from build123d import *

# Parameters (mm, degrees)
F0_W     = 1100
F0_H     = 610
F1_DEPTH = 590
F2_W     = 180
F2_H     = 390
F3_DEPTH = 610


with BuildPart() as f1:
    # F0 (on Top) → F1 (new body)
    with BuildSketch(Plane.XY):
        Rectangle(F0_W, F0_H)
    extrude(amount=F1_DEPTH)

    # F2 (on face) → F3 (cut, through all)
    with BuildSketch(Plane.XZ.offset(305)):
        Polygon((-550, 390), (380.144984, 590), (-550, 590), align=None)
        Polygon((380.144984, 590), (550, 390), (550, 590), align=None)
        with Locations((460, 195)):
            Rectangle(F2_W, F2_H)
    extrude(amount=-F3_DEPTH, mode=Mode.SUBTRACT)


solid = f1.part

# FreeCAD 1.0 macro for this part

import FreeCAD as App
import Part
import Sketcher
Q = App.Units.Quantity

doc = App.newDocument("Part")
params = doc.addObject("Spreadsheet::Sheet", "Params")
for row, (alias, value) in enumerate([
    ("sketch1_width", "1100 mm"),
    ("sketch1_height", "610 mm"),
    ("pad1_length", "590 mm"),
    ("sketch2_width", "180 mm"),
    ("sketch2_height", "200 mm"),
    ("sketch2_height2", "390 mm"),
], start=1):
    params.set(f"A{row}", alias)
    params.set(f"B{row}", "=" + value)
    params.setAlias(f"B{row}", alias)

body = doc.addObject("PartDesign::Body", "Body")

# Sketch on XY plane
sketch1 = body.newObject("Sketcher::SketchObject", "Sketch")
sketch1.AttachmentSupport = (doc.getObject("XY_Plane"), [""])
sketch1.MapMode = "FlatFace"
sketch1.addGeometry(Part.LineSegment(App.Vector(-550, 305, 0), App.Vector(-550, -305, 0)), False)
sketch1.addGeometry(Part.LineSegment(App.Vector(-550, -305, 0), App.Vector(550, -305, 0)), False)
sketch1.addGeometry(Part.LineSegment(App.Vector(550, -305, 0), App.Vector(550, 305, 0)), False)
sketch1.addGeometry(Part.LineSegment(App.Vector(550, 305, 0), App.Vector(-550, 305, 0)), False)
sketch1.addConstraint(Sketcher.Constraint("Coincident", 0, 2, 1, 1))
sketch1.addConstraint(Sketcher.Constraint("Coincident", 1, 2, 2, 1))
sketch1.addConstraint(Sketcher.Constraint("Coincident", 2, 2, 3, 1))
sketch1.addConstraint(Sketcher.Constraint("Coincident", 3, 2, 0, 1))
sketch1.addConstraint(Sketcher.Constraint("Vertical", 0))
sketch1.addConstraint(Sketcher.Constraint("Horizontal", 1))
sketch1.addConstraint(Sketcher.Constraint("Vertical", 2))
sketch1.addConstraint(Sketcher.Constraint("Horizontal", 3))
sketch1.addConstraint(Sketcher.Constraint("Symmetric", 0, 2, 2, 2, -1, 1))
sketch1.addConstraint(Sketcher.Constraint("DistanceX", 1, 1, 1, 2, Q("1100 mm")))
sketch1.addConstraint(Sketcher.Constraint("DistanceY", 0, 2, 0, 1, Q("610 mm")))
sketch1.setExpression("Constraints[9]", "Params.sketch1_width")
sketch1.setExpression("Constraints[10]", "Params.sketch1_height")
pad1 = body.newObject("PartDesign::Pad", "Pad")
pad1.Profile = sketch1
pad1.setExpression("Length", "Params.pad1_length")

# Sketch on XZ plane
sketch2 = body.newObject("Sketcher::SketchObject", "Sketch001")
sketch2.AttachmentSupport = (doc.getObject("XZ_Plane"), [""])
sketch2.MapMode = "FlatFace"
sketch2.AttachmentOffset = App.Placement(App.Vector(0, 0, 305), App.Rotation())
sketch2.addGeometry(Part.LineSegment(App.Vector(-550, 390, 0), App.Vector(380, 590, 0)), False)
sketch2.addGeometry(Part.LineSegment(App.Vector(380, 590, 0), App.Vector(-550, 590, 0)), False)
sketch2.addGeometry(Part.LineSegment(App.Vector(-550, 590, 0), App.Vector(-550, 390, 0)), False)
sketch2.addGeometry(Part.LineSegment(App.Vector(380, 590, 0), App.Vector(550, 390, 0)), False)
sketch2.addGeometry(Part.LineSegment(App.Vector(550, 390, 0), App.Vector(550, 590, 0)), False)
sketch2.addGeometry(Part.LineSegment(App.Vector(550, 590, 0), App.Vector(380, 590, 0)), False)
sketch2.addGeometry(Part.LineSegment(App.Vector(370, 390, 0), App.Vector(370, 0, 0)), False)
sketch2.addGeometry(Part.LineSegment(App.Vector(370, 0, 0), App.Vector(550, 0, 0)), False)
sketch2.addGeometry(Part.LineSegment(App.Vector(550, 0, 0), App.Vector(550, 390, 0)), False)
sketch2.addGeometry(Part.LineSegment(App.Vector(550, 390, 0), App.Vector(370, 390, 0)), False)
sketch2.addConstraint(Sketcher.Constraint("Coincident", 0, 2, 1, 1))
sketch2.addConstraint(Sketcher.Constraint("Coincident", 1, 2, 2, 1))
sketch2.addConstraint(Sketcher.Constraint("Coincident", 2, 2, 0, 1))
sketch2.addConstraint(Sketcher.Constraint("Coincident", 3, 2, 4, 1))
sketch2.addConstraint(Sketcher.Constraint("Coincident", 4, 2, 5, 1))
sketch2.addConstraint(Sketcher.Constraint("Coincident", 5, 2, 3, 1))
sketch2.addConstraint(Sketcher.Constraint("Coincident", 6, 2, 7, 1))
sketch2.addConstraint(Sketcher.Constraint("Coincident", 7, 2, 8, 1))
sketch2.addConstraint(Sketcher.Constraint("Coincident", 8, 2, 9, 1))
sketch2.addConstraint(Sketcher.Constraint("Coincident", 9, 2, 6, 1))
sketch2.addConstraint(Sketcher.Constraint("Horizontal", 1))
sketch2.addConstraint(Sketcher.Constraint("Vertical", 2))
sketch2.addConstraint(Sketcher.Constraint("Vertical", 4))
sketch2.addConstraint(Sketcher.Constraint("Horizontal", 5))
sketch2.addConstraint(Sketcher.Constraint("Vertical", 6))
sketch2.addConstraint(Sketcher.Constraint("Horizontal", 7))
sketch2.addConstraint(Sketcher.Constraint("Vertical", 8))
sketch2.addConstraint(Sketcher.Constraint("Horizontal", 9))
sketch2.addConstraint(Sketcher.Constraint("Coincident", 5, 2, 0, 2))
sketch2.addConstraint(Sketcher.Constraint("Coincident", 8, 2, 3, 2))
sketch2.addConstraint(Sketcher.Constraint("Symmetric", 2, 2, 3, 2, -2))
sketch2.addConstraint(Sketcher.Constraint("PointOnObject", 6, 2, -1))
sketch2.addConstraint(Sketcher.Constraint("DistanceX", 7, 1, 7, 2, Q("180 mm")))
sketch2.addConstraint(Sketcher.Constraint("DistanceY", 2, 2, 2, 1, Q("200 mm")))
sketch2.addConstraint(Sketcher.Constraint("DistanceY", 6, 2, 6, 1, Q("390 mm")))
sketch2.addConstraint(Sketcher.Constraint("DistanceX", 1, 2, -1, 1, Q("550 mm")))
sketch2.addConstraint(Sketcher.Constraint("Distance", 3, Q("262.39422 mm")))
sketch2.setExpression("Constraints[22]", "Params.sketch2_width")
sketch2.setExpression("Constraints[23]", "Params.sketch2_height")
sketch2.setExpression("Constraints[24]", "Params.sketch2_height2")
pocket1 = body.newObject("PartDesign::Pocket", "Pocket")
pocket1.Profile = sketch2
pocket1.Type = "ThroughAll"

doc.recompute()
